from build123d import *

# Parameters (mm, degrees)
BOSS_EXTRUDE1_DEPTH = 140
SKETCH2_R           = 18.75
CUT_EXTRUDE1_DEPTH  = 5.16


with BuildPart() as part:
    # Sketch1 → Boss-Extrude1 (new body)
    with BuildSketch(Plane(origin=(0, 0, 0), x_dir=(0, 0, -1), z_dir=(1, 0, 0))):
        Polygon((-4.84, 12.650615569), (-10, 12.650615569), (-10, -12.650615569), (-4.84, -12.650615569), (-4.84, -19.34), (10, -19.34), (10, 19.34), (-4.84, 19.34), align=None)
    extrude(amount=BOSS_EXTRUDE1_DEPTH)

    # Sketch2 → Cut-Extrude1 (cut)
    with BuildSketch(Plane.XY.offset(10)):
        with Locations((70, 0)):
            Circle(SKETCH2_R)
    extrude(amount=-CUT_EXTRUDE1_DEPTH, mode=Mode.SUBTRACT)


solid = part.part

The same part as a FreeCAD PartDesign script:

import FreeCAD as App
import Part
import Sketcher
from FreeCAD import Vector
Q = App.Units.Quantity

doc = App.newDocument("Part")
body = doc.addObject("PartDesign::Body", "Body")

# Sketch on YZ plane
sketch1 = doc.addObject("Sketcher::SketchObject", "Sketch")
body.addObject(sketch1)
sketch1.AttachmentSupport = (doc.YZ_Plane, [""])
sketch1.MapMode = "FlatFace"
sketch1.addGeometry([
    Part.LineSegment(Vector(12.650616, 4.84, 0), Vector(12.650616, 10, 0)),  # 0
    Part.LineSegment(Vector(12.650616, 10, 0), Vector(-12.650616, 10, 0)),  # 1
    Part.LineSegment(Vector(-12.650616, 10, 0), Vector(-12.650616, 4.84, 0)),  # 2
    Part.LineSegment(Vector(-12.650616, 4.84, 0), Vector(-19.34, 4.84, 0)),  # 3
    Part.LineSegment(Vector(-19.34, 4.84, 0), Vector(-19.34, -10, 0)),  # 4
    Part.LineSegment(Vector(-19.34, -10, 0), Vector(19.34, -10, 0)),  # 5
    Part.LineSegment(Vector(19.34, -10, 0), Vector(19.34, 4.84, 0)),  # 6
    Part.LineSegment(Vector(19.34, 4.84, 0), Vector(12.650616, 4.84, 0)),  # 7
], False)
sketch1.addConstraint([
    Sketcher.Constraint("Coincident", 0, 2, 1, 1),
    Sketcher.Constraint("Coincident", 1, 2, 2, 1),
    Sketcher.Constraint("Coincident", 2, 2, 3, 1),
    Sketcher.Constraint("Coincident", 3, 2, 4, 1),
    Sketcher.Constraint("Coincident", 4, 2, 5, 1),
    Sketcher.Constraint("Coincident", 5, 2, 6, 1),
    Sketcher.Constraint("Coincident", 6, 2, 7, 1),
    Sketcher.Constraint("Coincident", 7, 2, 0, 1),
    Sketcher.Constraint("Vertical", 0),
    Sketcher.Constraint("Horizontal", 1),
    Sketcher.Constraint("Vertical", 2),
    Sketcher.Constraint("Horizontal", 3),
    Sketcher.Constraint("Vertical", 4),
    Sketcher.Constraint("Horizontal", 5),
    Sketcher.Constraint("Vertical", 6),
    Sketcher.Constraint("Horizontal", 7),
    Sketcher.Constraint("Symmetric", 3, 2, 6, 2, -2),
    Sketcher.Constraint("Equal", 3, 7),
    Sketcher.Constraint("DistanceY", -1, 1, 0, 2, Q("10 mm")),
    Sketcher.Constraint("DistanceY", 4, 2, -1, 1, Q("10 mm")),
    Sketcher.Constraint("DistanceX", 5, 1, 5, 2, Q("38.68 mm")),
    Sketcher.Constraint("DistanceY", 0, 1, 0, 2, Q("5.16 mm")),
    Sketcher.Constraint("DistanceX", 1, 2, 1, 1, Q("25.301231 mm")),
])
pad1 = doc.addObject("PartDesign::Pad", "Pad")
body.addObject(pad1)
pad1.Profile = sketch1
pad1.Length = 140

# Sketch on XY plane
sketch2 = doc.addObject("Sketcher::SketchObject", "Sketch001")
body.addObject(sketch2)
sketch2.AttachmentSupport = (doc.XY_Plane, [""])
sketch2.MapMode = "FlatFace"
sketch2.AttachmentOffset = App.Placement(Vector(0, 0, 10), App.Rotation())
sketch2.addGeometry(Part.Circle(Vector(70, 0, 0), Vector(0, 0, 1), 18.75), False)
sketch2.addConstraint([
    Sketcher.Constraint("PointOnObject", 0, 3, -1),
    Sketcher.Constraint("Diameter", 0, Q("37.5 mm")),
    Sketcher.Constraint("DistanceX", -1, 1, 0, 3, Q("70 mm")),
])
pocket1 = doc.addObject("PartDesign::Pocket", "Pocket")
body.addObject(pocket1)
pocket1.Profile = sketch2
pocket1.Length = 5.16

doc.recompute()
